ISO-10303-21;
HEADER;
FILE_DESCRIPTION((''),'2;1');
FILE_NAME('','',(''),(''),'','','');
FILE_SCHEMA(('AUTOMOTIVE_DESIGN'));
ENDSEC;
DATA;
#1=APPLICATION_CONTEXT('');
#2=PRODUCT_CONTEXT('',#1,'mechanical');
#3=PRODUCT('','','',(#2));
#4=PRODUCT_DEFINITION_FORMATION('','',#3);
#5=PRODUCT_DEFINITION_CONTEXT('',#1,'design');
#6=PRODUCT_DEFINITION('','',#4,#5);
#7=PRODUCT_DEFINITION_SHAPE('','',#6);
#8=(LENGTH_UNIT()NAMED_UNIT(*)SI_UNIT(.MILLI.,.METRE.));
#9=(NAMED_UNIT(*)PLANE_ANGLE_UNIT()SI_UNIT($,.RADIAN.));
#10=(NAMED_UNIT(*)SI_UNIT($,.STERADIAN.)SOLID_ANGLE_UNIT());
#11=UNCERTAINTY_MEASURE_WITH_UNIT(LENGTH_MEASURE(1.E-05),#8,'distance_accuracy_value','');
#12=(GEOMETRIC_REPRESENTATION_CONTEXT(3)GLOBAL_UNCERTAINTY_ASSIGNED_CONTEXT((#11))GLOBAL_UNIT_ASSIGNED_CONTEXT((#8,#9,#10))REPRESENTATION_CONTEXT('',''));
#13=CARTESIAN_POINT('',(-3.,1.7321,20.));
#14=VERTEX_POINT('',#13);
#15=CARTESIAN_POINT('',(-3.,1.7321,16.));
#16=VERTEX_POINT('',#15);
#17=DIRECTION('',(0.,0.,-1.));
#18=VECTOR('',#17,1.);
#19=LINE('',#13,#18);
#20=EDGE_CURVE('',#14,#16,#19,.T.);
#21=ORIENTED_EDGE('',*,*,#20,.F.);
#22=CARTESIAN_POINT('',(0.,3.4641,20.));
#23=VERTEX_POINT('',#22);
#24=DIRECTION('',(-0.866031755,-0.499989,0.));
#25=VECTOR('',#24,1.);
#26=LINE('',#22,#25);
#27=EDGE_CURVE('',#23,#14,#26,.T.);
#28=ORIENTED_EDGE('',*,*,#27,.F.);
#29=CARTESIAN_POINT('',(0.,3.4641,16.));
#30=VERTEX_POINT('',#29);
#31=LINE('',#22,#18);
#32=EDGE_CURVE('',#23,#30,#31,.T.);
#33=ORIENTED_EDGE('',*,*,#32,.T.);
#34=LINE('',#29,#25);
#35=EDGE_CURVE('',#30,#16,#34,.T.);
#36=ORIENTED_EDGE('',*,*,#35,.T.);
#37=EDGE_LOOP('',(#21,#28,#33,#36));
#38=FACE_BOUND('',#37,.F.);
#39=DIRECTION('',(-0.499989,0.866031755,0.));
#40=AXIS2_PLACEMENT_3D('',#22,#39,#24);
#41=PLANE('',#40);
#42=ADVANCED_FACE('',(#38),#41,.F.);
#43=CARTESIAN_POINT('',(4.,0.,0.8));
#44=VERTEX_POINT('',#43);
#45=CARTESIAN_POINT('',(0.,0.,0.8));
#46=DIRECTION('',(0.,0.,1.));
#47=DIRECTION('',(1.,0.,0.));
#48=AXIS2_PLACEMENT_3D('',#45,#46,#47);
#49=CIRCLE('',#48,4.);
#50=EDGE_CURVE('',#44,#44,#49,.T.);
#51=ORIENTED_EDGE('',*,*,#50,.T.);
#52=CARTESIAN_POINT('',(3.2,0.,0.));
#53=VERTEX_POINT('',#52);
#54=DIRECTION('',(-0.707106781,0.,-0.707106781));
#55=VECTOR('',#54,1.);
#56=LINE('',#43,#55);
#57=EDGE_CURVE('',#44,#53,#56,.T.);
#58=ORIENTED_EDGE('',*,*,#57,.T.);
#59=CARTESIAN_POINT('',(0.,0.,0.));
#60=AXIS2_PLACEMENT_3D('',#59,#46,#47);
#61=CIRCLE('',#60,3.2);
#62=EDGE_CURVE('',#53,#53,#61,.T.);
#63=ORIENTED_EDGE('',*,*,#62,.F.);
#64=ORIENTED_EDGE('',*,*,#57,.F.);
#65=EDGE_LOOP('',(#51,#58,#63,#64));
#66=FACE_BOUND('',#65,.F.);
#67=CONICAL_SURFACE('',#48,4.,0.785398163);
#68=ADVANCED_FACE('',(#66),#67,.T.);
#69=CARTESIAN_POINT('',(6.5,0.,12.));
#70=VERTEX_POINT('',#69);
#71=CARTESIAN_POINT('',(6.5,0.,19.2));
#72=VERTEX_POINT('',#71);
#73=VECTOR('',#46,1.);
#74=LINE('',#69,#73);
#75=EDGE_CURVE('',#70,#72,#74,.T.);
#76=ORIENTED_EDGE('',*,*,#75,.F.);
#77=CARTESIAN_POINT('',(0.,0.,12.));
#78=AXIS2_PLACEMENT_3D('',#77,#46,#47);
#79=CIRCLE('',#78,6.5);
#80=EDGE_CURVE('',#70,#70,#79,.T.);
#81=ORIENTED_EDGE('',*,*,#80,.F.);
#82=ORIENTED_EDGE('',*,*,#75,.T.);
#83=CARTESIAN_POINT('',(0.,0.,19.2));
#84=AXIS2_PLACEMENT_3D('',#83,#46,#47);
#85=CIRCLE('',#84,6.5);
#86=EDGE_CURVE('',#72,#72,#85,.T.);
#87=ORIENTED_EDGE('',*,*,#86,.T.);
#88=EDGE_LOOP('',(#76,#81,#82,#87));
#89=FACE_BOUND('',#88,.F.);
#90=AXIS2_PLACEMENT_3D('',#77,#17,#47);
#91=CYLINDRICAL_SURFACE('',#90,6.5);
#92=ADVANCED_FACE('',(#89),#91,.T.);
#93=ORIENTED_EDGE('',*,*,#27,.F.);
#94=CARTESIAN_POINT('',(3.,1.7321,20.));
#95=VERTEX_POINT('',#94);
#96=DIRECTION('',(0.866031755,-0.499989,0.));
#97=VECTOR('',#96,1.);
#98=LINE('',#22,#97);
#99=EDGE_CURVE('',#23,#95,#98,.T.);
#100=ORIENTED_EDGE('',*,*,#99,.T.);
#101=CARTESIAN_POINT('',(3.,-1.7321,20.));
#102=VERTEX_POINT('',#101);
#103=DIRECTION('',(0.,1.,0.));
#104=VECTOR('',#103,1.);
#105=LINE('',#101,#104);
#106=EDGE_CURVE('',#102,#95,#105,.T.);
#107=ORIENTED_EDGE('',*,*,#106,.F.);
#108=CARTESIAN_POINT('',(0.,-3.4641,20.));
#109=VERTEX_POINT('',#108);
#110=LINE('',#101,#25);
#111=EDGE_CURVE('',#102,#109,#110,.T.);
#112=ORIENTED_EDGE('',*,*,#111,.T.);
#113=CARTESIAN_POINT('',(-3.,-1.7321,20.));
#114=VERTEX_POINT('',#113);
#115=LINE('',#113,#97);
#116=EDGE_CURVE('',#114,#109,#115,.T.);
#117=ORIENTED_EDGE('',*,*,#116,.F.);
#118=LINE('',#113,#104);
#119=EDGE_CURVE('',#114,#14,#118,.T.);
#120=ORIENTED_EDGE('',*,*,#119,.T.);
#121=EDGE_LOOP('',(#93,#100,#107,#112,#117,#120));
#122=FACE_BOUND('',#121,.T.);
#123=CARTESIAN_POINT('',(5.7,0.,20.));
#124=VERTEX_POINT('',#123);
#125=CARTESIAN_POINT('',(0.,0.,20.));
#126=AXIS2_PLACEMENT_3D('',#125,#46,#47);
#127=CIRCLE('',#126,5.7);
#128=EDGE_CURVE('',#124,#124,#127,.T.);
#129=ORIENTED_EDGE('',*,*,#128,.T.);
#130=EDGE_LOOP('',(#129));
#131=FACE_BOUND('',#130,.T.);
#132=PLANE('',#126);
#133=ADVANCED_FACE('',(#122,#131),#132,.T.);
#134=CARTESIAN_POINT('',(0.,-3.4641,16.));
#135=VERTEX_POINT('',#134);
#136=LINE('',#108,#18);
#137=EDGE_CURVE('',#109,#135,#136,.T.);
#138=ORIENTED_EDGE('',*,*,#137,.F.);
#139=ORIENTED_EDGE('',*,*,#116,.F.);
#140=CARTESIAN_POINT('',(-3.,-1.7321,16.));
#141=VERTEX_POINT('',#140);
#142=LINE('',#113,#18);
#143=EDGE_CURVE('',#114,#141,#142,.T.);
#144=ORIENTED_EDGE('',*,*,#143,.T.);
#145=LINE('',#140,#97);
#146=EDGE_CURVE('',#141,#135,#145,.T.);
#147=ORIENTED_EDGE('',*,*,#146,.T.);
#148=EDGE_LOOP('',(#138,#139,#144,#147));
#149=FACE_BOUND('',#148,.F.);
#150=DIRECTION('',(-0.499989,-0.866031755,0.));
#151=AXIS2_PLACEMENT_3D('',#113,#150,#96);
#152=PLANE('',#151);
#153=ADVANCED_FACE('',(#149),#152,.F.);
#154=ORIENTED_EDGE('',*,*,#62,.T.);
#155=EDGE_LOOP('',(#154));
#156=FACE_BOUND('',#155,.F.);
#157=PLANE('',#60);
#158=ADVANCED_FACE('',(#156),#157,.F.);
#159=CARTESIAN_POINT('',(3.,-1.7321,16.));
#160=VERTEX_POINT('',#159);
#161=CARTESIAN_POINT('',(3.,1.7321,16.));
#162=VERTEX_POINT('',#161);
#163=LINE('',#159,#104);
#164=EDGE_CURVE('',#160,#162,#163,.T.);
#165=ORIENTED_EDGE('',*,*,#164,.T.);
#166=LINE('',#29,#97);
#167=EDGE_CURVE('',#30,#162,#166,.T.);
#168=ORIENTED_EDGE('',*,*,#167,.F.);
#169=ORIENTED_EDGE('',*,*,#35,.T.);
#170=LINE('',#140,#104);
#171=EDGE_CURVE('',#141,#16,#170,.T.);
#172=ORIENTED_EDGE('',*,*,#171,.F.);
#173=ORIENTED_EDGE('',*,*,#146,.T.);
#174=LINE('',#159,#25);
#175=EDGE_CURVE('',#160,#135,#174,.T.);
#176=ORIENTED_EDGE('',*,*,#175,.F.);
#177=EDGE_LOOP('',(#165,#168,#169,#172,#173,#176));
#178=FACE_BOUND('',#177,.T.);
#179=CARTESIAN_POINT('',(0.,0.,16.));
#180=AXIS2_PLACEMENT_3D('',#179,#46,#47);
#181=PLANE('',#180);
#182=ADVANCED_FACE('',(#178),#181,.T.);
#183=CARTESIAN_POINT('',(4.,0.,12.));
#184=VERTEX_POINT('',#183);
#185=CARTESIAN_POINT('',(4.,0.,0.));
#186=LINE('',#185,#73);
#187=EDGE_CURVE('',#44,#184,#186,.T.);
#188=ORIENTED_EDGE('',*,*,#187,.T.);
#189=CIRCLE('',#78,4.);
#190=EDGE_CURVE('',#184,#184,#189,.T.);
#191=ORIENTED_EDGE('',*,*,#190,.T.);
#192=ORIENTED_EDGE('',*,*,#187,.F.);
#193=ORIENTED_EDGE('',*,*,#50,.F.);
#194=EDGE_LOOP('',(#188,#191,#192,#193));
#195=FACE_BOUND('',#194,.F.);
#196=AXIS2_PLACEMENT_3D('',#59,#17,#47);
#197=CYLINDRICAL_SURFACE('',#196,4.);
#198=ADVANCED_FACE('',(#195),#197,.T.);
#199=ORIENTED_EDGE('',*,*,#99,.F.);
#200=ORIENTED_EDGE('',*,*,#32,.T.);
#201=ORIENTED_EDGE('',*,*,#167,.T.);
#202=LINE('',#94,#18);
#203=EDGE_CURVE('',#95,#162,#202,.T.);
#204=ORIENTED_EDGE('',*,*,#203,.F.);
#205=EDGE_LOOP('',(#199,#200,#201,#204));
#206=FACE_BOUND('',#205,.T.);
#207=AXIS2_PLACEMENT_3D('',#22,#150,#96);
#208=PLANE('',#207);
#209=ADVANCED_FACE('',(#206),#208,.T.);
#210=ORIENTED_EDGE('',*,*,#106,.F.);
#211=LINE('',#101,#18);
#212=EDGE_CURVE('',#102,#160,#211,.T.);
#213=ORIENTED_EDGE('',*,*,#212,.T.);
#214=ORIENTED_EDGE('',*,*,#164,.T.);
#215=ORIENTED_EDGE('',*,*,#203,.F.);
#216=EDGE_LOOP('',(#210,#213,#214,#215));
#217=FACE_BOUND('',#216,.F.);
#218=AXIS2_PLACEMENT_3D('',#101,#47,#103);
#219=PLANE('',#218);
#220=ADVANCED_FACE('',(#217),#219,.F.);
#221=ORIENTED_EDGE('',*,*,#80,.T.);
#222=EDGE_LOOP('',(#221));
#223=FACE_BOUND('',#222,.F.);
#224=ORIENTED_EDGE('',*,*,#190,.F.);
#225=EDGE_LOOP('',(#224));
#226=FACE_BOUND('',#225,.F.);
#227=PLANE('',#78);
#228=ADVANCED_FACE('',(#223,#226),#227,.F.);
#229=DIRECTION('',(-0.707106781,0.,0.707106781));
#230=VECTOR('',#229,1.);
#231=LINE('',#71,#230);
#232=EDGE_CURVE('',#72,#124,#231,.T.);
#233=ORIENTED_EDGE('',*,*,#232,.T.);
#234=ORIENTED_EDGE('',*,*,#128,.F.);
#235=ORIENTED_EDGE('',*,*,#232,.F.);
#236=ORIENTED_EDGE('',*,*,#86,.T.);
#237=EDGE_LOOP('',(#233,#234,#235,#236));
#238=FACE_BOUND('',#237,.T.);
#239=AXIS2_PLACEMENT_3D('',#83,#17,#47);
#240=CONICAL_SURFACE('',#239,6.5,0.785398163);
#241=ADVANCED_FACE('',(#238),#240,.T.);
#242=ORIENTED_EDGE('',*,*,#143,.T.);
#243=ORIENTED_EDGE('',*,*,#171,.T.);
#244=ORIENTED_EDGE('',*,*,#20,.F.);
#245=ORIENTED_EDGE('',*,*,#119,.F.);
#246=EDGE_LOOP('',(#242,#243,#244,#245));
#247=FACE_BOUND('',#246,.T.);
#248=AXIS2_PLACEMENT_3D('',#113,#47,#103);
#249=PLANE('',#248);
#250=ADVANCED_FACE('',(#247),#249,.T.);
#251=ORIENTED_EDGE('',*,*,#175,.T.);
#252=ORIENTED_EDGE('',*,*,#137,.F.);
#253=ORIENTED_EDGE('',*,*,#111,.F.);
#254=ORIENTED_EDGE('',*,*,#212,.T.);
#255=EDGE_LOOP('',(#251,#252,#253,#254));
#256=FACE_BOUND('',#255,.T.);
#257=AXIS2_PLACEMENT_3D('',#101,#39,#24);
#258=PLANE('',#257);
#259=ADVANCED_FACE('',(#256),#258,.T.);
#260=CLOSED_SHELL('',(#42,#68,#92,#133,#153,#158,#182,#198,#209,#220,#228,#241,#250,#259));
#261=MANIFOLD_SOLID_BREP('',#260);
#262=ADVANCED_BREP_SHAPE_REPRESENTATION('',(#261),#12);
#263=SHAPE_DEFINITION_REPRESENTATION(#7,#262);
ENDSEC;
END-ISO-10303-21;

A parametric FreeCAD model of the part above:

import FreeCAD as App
import Part
import Sketcher
from FreeCAD import Vector
Q = App.Units.Quantity


def edges_at(feature, points):
    """Names of the edges that pass closest to the given points."""
    edges = feature.Shape.Edges
    near = lambda p: min(range(len(edges)), key=lambda i: edges[i].distToShape(Part.Vertex(*p))[0])
    return sorted({f"Edge{near(p) + 1}" for p in points})

doc = App.newDocument("Part")
body = doc.addObject("PartDesign::Body", "Body")

sketch1 = body.newObject("Sketcher::SketchObject", "Sketch")
sketch1.AttachmentSupport = (doc.getObject("XY_Plane"), [""])
sketch1.MapMode = "FlatFace"
sketch1.addGeometry(Part.Circle(Vector(0, 0, 0), Vector(0, 0, 1), 4), False)
sketch1.addConstraint([
    Sketcher.Constraint("Coincident", 0, 3, -1, 1),
    Sketcher.Constraint("Diameter", 0, Q("8 mm")),
])
pad1 = body.newObject("PartDesign::Pad", "Pad")
pad1.Profile = sketch1
pad1.Length = 12

sketch2 = body.newObject("Sketcher::SketchObject", "Sketch001")
sketch2.AttachmentSupport = (doc.getObject("XY_Plane"), [""])
sketch2.MapMode = "FlatFace"
sketch2.AttachmentOffset = App.Placement(Vector(0, 0, 12), App.Rotation())
sketch2.addGeometry(Part.Circle(Vector(0, 0, 0), Vector(0, 0, 1), 6), False)
sketch2.addConstraint([
    Sketcher.Constraint("Coincident", 0, 3, -1, 1),
    Sketcher.Constraint("Diameter", 0, Q("13 mm")),
])
pad2 = body.newObject("PartDesign::Pad", "Pad001")
pad2.Profile = sketch2
pad2.Length = 8

sketch3 = body.newObject("Sketcher::SketchObject", "Sketch002")
sketch3.AttachmentSupport = (doc.getObject("XY_Plane"), [""])
sketch3.MapMode = "FlatFace"
sketch3.AttachmentOffset = App.Placement(Vector(0, 0, 20), App.Rotation())
sketch3.addGeometry([
    Part.LineSegment(Vector(3, 1.7, 0), Vector(0, 3.5, 0)),
    Part.LineSegment(Vector(0, 3.5, 0), Vector(-3, 1.7, 0)),
    Part.LineSegment(Vector(-3, 1.7, 0), Vector(-3, -1.7, 0)),
    Part.LineSegment(Vector(-3, -1.7, 0), Vector(0, -3.5, 0)),
    Part.LineSegment(Vector(0, -3.5, 0), Vector(3, -1.7, 0)),
    Part.LineSegment(Vector(3, -1.7, 0), Vector(3, 1.7, 0)),
], False)
sketch3.addConstraint([
    Sketcher.Constraint("Coincident", 0, 2, 1, 1),
    Sketcher.Constraint("Coincident", 1, 2, 2, 1),
    Sketcher.Constraint("Coincident", 2, 2, 3, 1),
    Sketcher.Constraint("Coincident", 3, 2, 4, 1),
    Sketcher.Constraint("Coincident", 4, 2, 5, 1),
    Sketcher.Constraint("Coincident", 5, 2, 0, 1),
    Sketcher.Constraint("Vertical", 2),
    Sketcher.Constraint("Vertical", 5),
    Sketcher.Constraint("Symmetric", 0, 2, 3, 2, -1, 1),
    Sketcher.Constraint("Symmetric", 1, 2, 4, 2, -1, 1),
    Sketcher.Constraint("PointOnObject", 0, 2, -2),
    Sketcher.Constraint("Parallel", 0, 3),
    Sketcher.Constraint("Horizontal", 2, 2, 4, 2),
    Sketcher.Constraint("DistanceX", 2, 2, 4, 2, Q("6 mm")),
    Sketcher.Constraint("Angle", 0, Q("150.0007 deg")),
    Sketcher.Constraint("DistanceY", 2, 2, 2, 1, Q("3.4642 mm")),
])
pocket1 = body.newObject("PartDesign::Pocket", "Pocket")
pocket1.Profile = sketch3
pocket1.Length = 4
doc.recompute()

chamfer = body.newObject("PartDesign::Chamfer", "Chamfer")
chamfer.Base = (pocket1, edges_at(pocket1, [(-6.5, 0, 20), (-4, 0, 0)]))
chamfer.Size = 0.8

doc.recompute()
